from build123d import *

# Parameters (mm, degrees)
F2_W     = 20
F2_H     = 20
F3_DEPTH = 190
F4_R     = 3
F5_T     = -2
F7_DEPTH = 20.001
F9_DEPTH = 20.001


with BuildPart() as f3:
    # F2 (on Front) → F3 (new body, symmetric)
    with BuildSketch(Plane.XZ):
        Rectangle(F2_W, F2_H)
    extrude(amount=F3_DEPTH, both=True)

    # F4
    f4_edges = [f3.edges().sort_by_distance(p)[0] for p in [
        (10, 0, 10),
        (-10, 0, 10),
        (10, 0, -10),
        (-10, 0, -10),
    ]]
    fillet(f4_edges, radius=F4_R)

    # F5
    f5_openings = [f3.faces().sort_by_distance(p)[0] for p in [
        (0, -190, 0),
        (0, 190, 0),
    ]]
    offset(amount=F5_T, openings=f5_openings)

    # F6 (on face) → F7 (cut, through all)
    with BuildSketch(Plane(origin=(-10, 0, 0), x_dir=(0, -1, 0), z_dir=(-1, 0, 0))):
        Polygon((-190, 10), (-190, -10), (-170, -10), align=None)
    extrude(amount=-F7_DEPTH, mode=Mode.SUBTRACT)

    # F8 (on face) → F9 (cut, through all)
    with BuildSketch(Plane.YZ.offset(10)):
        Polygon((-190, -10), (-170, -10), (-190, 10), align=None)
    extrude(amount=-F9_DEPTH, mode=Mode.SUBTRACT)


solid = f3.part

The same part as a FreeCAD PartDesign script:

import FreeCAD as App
import Part
import Sketcher
Q = App.Units.Quantity


def edges_at(feature, points):
    """Names of the edges that pass closest to the given points."""
    edges = feature.Shape.Edges
    near = lambda p: min(range(len(edges)), key=lambda i: edges[i].distToShape(Part.Vertex(*p))[0])
    return sorted({f"Edge{near(p) + 1}" for p in points})


def faces_at(feature, points):
    """Names of the faces that lie closest to the given points."""
    faces = feature.Shape.Faces
    near = lambda p: min(range(len(faces)), key=lambda i: faces[i].distToShape(Part.Vertex(*p))[0])
    return sorted({f"Face{near(p) + 1}" for p in points})


def add_polygon(sketch, points):
    """Adds a closed chain of lines whose ends are joined by coincident constraints."""
    first, n = sketch.GeometryCount, len(points)
    for a, b in zip(points, points[1:] + points[:1]):
        sketch.addGeometry(Part.LineSegment(App.Vector(*a, 0), App.Vector(*b, 0)), False)
    for i in range(n):
        sketch.addConstraint(Sketcher.Constraint("Coincident", first + i, 2, first + (i + 1) % n, 1))

doc = App.newDocument("Part")
body = doc.addObject("PartDesign::Body", "Body")

# Sketch on XZ plane
sketch1 = body.newObject("Sketcher::SketchObject", "Sketch")
sketch1.AttachmentSupport = (doc.getObject("XZ_Plane"), [""])
sketch1.MapMode = "FlatFace"
add_polygon(sketch1, [(-10, 10), (-10, -10), (10, -10), (10, 10)])  # lines 0-3
sketch1.addConstraint([
    Sketcher.Constraint("Vertical", 0),
    Sketcher.Constraint("Horizontal", 1),
    Sketcher.Constraint("Vertical", 2),
    Sketcher.Constraint("Horizontal", 3),
    Sketcher.Constraint("Symmetric", 0, 2, 2, 2, -1, 1),
    Sketcher.Constraint("Equal", 3, 0),
    Sketcher.Constraint("DistanceX", 1, 1, 1, 2, Q("20 mm")),
])
pad1 = body.newObject("PartDesign::Pad", "Pad")
pad1.Profile = sketch1
pad1.Length = 380
pad1.Midplane = True
doc.recompute()

fillet = body.newObject("PartDesign::Fillet", "Fillet")
fillet.Base = (pad1, edges_at(pad1, [
    (10, 0, 10),
    (-10, 0, 10),
    (10, 0, -10),
    (-10, 0, -10),
]))
fillet.Radius = 3
doc.recompute()

thickness = body.newObject("PartDesign::Thickness", "Thickness")
thickness.Base = (fillet, faces_at(fillet, [(0, -190, 0), (0, 190, 0)]))
thickness.Value = 2
thickness.Reversed = True
thickness.Join = "Arc"

# Sketch on YZ plane
sketch2 = body.newObject("Sketcher::SketchObject", "Sketch001")
sketch2.AttachmentSupport = (doc.getObject("YZ_Plane"), [""])
sketch2.MapMode = "FlatFace"
sketch2.AttachmentOffset = App.Placement(App.Vector(0, 0, -10), App.Rotation())
add_polygon(sketch2, [(190, 10), (190, -10), (170, -10)])  # lines 0-2
sketch2.addConstraint([
    Sketcher.Constraint("Vertical", 0),
    Sketcher.Constraint("Horizontal", 1),
    Sketcher.Constraint("Equal", 1, 0),
    Sketcher.Constraint("DistanceX", 1, 2, 1, 1, Q("20 mm")),
    Sketcher.Constraint("DistanceX", -1, 1, 0, 2, Q("190 mm")),
    Sketcher.Constraint("DistanceY", 0, 2, -1, 1, Q("10 mm")),
])
pocket1 = body.newObject("PartDesign::Pocket", "Pocket")
pocket1.Profile = sketch2
pocket1.Type = "ThroughAll"
pocket1.Reversed = True

# Sketch on YZ plane
sketch3 = body.newObject("Sketcher::SketchObject", "Sketch002")
sketch3.AttachmentSupport = (doc.getObject("YZ_Plane"), [""])
sketch3.MapMode = "FlatFace"
sketch3.AttachmentOffset = App.Placement(App.Vector(0, 0, 10), App.Rotation())
add_polygon(sketch3, [(-190, -10), (-170, -10), (-190, 10)])  # lines 0-2
sketch3.addConstraint([
    Sketcher.Constraint("Horizontal", 0),
    Sketcher.Constraint("Vertical", 2),
    Sketcher.Constraint("Equal", 0, 2),
    Sketcher.Constraint("DistanceX", 0, 1, 0, 2, Q("20 mm")),
    Sketcher.Constraint("DistanceX", 0, 2, -1, 1, Q("170 mm")),
    Sketcher.Constraint("DistanceY", 0, 2, -1, 1, Q("10 mm")),
])
pocket2 = body.newObject("PartDesign::Pocket", "Pocket001")
pocket2.Profile = sketch3
pocket2.Type = "ThroughAll"

doc.recompute()
